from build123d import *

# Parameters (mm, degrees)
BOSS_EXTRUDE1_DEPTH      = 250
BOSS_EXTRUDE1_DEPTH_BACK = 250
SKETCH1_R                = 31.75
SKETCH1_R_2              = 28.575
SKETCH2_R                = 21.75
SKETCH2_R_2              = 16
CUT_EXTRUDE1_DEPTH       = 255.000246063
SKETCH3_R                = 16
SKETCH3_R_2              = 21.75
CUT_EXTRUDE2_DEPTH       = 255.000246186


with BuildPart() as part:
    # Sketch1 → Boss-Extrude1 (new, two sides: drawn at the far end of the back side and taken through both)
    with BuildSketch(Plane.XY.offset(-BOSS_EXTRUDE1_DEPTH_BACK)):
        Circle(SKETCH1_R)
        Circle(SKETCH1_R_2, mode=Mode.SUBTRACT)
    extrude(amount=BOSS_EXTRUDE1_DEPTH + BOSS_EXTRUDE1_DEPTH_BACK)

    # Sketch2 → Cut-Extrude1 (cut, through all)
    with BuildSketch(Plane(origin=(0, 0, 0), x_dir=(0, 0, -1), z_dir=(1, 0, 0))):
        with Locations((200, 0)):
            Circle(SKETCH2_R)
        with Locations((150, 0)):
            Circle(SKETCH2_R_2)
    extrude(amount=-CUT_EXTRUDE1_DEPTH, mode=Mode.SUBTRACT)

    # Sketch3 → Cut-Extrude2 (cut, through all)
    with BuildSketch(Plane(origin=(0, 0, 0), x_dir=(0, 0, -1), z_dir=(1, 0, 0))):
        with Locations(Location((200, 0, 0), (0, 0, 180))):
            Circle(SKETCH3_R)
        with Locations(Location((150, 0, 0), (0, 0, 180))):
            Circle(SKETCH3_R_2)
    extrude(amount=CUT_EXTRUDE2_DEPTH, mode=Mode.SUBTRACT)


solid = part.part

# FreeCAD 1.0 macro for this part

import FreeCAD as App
import Part
import Sketcher

V = App.Vector
Q = App.Units.Quantity

doc = App.newDocument("Part")
body = doc.addObject("PartDesign::Body", "Body")

sketch1 = body.newObject("Sketcher::SketchObject", "Sketch")
sketch1.AttachmentSupport = (doc.getObject("XY_Plane"), [""])
sketch1.MapMode = "FlatFace"
sketch1.addGeometry(Part.Circle(V(0, 0, 0), V(0, 0, 1), 32), False)
sketch1.addGeometry(Part.Circle(V(0, 0, 0), V(0, 0, 1), 29), False)
sketch1.addConstraint(Sketcher.Constraint("Coincident", 0, 3, -1, 1))
sketch1.addConstraint(Sketcher.Constraint("Coincident", 1, 3, -1, 1))
sketch1.addConstraint(Sketcher.Constraint("Diameter", 0, Q("63.5 mm")))
sketch1.addConstraint(Sketcher.Constraint("Diameter", 1, Q("57.15 mm")))
pad1 = body.newObject("PartDesign::Pad", "Pad")
pad1.Profile = sketch1
pad1.Type = "TwoLengths"
pad1.Length = 250
pad1.Length2 = 250

sketch2 = body.newObject("Sketcher::SketchObject", "Sketch001")
sketch2.AttachmentSupport = (doc.getObject("YZ_Plane"), [""])
sketch2.MapMode = "FlatFace"
sketch2.addGeometry(Part.Circle(V(0, -200, 0), V(0, 0, 1), 22), False)
sketch2.addGeometry(Part.Circle(V(0, -150, 0), V(0, 0, 1), 16), False)
sketch2.addConstraint(Sketcher.Constraint("PointOnObject", 0, 3, -2))
sketch2.addConstraint(Sketcher.Constraint("PointOnObject", 1, 3, -2))
sketch2.addConstraint(Sketcher.Constraint("Diameter", 1, Q("32 mm")))
sketch2.addConstraint(Sketcher.Constraint("Diameter", 0, Q("43.5 mm")))
sketch2.addConstraint(Sketcher.Constraint("DistanceY", 0, 3, -1, 1, Q("200 mm")))
sketch2.addConstraint(Sketcher.Constraint("DistanceY", 1, 3, -1, 1, Q("150 mm")))
pocket1 = body.newObject("PartDesign::Pocket", "Pocket")
pocket1.Profile = sketch2
pocket1.Type = "ThroughAll"

sketch3 = body.newObject("Sketcher::SketchObject", "Sketch002")
sketch3.AttachmentSupport = (doc.getObject("YZ_Plane"), [""])
sketch3.MapMode = "FlatFace"
sketch3.addGeometry(Part.Circle(V(0, -200, 0), V(0, 0, 1), 16), False)
sketch3.addGeometry(Part.Circle(V(0, -150, 0), V(0, 0, 1), 22), False)
sketch3.addConstraint(Sketcher.Constraint("PointOnObject", 0, 3, -2))
sketch3.addConstraint(Sketcher.Constraint("PointOnObject", 1, 3, -2))
sketch3.addConstraint(Sketcher.Constraint("Diameter", 0, Q("32 mm")))
sketch3.addConstraint(Sketcher.Constraint("Diameter", 1, Q("43.5 mm")))
sketch3.addConstraint(Sketcher.Constraint("DistanceY", 0, 3, -1, 1, Q("200 mm")))
sketch3.addConstraint(Sketcher.Constraint("DistanceY", 1, 3, -1, 1, Q("150 mm")))
pocket2 = body.newObject("PartDesign::Pocket", "Pocket001")
pocket2.Profile = sketch3
pocket2.Type = "ThroughAll"
pocket2.Reversed = True

doc.recompute()
